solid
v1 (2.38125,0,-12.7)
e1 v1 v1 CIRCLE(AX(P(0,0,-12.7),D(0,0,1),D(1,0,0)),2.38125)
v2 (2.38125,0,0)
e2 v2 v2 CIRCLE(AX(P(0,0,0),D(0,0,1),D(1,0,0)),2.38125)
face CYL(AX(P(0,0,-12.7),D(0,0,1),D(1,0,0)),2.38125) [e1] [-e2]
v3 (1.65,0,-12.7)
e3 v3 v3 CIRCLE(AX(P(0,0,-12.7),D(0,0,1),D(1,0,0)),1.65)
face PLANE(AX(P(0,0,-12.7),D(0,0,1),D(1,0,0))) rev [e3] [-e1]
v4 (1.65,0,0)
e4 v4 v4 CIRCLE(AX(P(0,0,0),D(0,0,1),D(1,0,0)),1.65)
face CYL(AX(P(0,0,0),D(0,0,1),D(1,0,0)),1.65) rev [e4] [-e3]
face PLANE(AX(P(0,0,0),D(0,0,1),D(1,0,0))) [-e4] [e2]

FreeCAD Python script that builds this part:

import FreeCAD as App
import Part
import Sketcher

V = App.Vector
Q = App.Units.Quantity

doc = App.newDocument("Part")
body = doc.addObject("PartDesign::Body", "Body")

sketch1 = doc.addObject("Sketcher::SketchObject", "Sketch")
body.addObject(sketch1)
sketch1.AttachmentSupport = (doc.XY_Plane, [""])
sketch1.MapMode = "FlatFace"
sketch1.addGeometry(Part.Circle(V(0, 0, 0), V(0, 0, 1), 2.4), False)
sketch1.addConstraint([
    Sketcher.Constraint("Coincident", 0, 3, -1, 1),
    Sketcher.Constraint("Diameter", 0, Q("0.1875 in")),
])
pad1 = doc.addObject("PartDesign::Pad", "Pad")
body.addObject(pad1)
pad1.Profile = sketch1
pad1.Length = Q("0.5 in")
pad1.Reversed = True

sketch2 = doc.addObject("Sketcher::SketchObject", "Sketch001")
body.addObject(sketch2)
sketch2.AttachmentSupport = (doc.XY_Plane, [""])
sketch2.MapMode = "FlatFace"
sketch2.addGeometry(Part.Circle(V(0, 0, 0), V(0, 0, 1), 1.6), False)
sketch2.addConstraint([
    Sketcher.Constraint("Coincident", 0, 3, -1, 1),
    Sketcher.Constraint("Diameter", 0, 3.3),
])
doc.recompute()
hole = doc.addObject("PartDesign::Hole", "Hole")
body.addObject(hole)
hole.Profile = sketch2
hole.ThreadType = "None"
hole.Diameter = 3.3
hole.DepthType = "ThroughAll"

doc.recompute()
